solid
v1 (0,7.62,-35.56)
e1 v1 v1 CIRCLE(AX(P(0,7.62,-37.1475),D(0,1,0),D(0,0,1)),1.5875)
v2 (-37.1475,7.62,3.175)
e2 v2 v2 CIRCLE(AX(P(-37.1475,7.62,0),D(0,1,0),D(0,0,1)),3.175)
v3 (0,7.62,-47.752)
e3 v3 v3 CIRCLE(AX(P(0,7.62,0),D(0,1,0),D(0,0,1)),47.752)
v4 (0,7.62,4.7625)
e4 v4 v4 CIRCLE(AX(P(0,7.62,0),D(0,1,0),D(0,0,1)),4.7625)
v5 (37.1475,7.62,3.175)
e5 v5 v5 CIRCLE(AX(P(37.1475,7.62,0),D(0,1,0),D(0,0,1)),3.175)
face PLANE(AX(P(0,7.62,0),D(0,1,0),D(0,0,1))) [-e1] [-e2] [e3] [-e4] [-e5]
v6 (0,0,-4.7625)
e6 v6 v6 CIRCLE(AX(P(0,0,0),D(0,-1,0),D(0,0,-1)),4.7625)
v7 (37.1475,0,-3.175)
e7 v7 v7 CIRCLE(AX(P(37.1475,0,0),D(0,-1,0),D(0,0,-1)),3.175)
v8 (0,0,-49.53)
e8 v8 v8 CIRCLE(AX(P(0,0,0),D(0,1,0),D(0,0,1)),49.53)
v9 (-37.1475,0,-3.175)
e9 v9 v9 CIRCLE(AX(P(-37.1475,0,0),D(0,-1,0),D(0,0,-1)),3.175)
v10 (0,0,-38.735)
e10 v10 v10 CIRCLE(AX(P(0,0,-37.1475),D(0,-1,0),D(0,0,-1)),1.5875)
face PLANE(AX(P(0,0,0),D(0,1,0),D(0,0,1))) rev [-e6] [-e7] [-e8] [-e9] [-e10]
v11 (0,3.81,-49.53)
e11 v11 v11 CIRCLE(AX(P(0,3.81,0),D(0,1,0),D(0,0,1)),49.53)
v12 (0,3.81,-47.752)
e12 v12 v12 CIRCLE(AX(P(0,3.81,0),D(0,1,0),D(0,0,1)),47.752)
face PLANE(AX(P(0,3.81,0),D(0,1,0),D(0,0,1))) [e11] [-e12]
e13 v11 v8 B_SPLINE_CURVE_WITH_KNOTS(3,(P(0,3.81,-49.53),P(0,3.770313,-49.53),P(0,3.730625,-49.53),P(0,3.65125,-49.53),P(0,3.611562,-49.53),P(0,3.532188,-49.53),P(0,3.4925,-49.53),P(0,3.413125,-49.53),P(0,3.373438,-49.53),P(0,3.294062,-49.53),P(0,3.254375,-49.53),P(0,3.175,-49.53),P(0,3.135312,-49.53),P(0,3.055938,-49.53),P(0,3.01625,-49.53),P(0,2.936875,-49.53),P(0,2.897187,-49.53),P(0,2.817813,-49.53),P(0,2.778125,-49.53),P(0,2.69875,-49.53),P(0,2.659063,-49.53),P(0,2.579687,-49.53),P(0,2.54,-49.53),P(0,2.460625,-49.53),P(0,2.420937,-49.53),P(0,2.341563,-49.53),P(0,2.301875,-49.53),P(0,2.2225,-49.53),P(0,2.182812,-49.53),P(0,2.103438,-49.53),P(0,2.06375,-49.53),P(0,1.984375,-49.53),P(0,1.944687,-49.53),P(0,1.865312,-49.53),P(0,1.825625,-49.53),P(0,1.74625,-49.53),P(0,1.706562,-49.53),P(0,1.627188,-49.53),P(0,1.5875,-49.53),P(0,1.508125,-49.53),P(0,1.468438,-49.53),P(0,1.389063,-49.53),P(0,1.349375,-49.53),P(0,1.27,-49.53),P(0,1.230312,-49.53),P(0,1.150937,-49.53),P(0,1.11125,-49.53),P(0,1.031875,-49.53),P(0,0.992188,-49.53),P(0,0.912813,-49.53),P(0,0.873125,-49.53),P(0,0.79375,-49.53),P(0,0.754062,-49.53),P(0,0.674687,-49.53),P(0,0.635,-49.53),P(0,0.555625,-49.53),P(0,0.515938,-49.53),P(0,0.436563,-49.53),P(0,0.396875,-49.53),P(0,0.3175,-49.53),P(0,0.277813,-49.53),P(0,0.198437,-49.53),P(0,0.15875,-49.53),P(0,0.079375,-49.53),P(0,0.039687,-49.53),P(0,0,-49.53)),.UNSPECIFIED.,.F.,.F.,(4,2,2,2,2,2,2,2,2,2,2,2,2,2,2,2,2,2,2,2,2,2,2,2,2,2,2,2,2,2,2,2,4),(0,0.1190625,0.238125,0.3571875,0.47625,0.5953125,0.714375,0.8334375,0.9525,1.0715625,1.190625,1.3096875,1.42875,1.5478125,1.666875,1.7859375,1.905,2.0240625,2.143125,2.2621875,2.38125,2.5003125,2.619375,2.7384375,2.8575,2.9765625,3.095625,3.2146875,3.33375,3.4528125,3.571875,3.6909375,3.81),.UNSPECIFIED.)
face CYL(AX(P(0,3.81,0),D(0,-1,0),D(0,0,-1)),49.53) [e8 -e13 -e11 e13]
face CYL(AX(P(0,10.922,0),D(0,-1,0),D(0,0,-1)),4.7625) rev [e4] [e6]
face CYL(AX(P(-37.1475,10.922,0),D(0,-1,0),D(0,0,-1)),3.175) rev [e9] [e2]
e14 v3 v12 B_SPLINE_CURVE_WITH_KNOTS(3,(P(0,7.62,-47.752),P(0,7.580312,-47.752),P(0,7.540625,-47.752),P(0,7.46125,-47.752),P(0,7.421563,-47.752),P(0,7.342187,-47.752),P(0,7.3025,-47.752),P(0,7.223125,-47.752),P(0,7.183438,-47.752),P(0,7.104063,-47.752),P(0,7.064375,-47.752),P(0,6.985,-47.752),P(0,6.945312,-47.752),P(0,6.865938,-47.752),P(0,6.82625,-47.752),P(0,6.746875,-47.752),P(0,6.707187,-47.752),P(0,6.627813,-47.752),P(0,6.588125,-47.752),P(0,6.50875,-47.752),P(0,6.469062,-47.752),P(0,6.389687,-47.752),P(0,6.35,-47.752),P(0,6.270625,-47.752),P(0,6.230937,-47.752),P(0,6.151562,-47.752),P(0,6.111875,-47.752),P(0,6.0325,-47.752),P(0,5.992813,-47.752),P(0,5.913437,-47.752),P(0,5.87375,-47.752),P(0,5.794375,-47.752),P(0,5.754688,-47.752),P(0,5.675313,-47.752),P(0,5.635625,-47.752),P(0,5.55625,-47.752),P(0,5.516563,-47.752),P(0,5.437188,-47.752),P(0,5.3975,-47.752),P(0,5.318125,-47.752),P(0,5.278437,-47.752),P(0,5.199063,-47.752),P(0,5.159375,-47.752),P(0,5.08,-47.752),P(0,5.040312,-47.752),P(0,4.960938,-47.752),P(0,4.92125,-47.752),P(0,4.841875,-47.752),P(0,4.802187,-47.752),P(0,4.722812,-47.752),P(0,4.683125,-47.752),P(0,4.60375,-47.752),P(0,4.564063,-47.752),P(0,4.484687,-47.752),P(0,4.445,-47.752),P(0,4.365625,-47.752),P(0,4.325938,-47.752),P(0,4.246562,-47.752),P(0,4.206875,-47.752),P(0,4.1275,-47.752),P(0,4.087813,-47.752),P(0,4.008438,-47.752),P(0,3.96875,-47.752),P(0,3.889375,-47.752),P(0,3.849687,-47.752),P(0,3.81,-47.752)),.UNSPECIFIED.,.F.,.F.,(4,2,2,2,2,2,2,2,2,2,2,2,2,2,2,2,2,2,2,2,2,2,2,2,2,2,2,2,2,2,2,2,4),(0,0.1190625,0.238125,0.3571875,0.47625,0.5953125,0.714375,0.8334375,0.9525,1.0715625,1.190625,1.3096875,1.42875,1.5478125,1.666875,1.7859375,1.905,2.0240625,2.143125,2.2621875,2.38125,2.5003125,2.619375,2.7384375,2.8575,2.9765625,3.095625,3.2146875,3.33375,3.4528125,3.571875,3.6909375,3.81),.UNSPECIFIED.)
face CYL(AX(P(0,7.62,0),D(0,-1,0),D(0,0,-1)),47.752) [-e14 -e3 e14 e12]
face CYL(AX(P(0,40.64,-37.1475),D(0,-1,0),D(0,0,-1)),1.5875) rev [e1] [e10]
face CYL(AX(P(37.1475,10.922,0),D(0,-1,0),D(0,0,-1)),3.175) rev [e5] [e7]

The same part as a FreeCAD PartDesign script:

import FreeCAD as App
import Part
import Sketcher
from FreeCAD import Vector
Q = App.Units.Quantity

doc = App.newDocument("Part")
body = doc.addObject("PartDesign::Body", "Body")

sketch1 = body.newObject("Sketcher::SketchObject", "Sketch")
sketch1.AttachmentSupport = (doc.getObject("XZ_Plane"), [""])
sketch1.MapMode = "FlatFace"
sketch1.addGeometry(Part.Circle(Vector(0, 0, 0), Vector(0, 0, 1), 50), False)
sketch1.addConstraint(Sketcher.Constraint("Coincident", 0, 3, -1, 1))
sketch1.addConstraint(Sketcher.Constraint("Diameter", 0, Q("3.9 in")))
pad1 = body.newObject("PartDesign::Pad", "Pad")
pad1.Profile = sketch1
pad1.Length = Q("0.15 in")
pad1.Reversed = True

sketch2 = body.newObject("Sketcher::SketchObject", "Sketch001")
sketch2.AttachmentSupport = (doc.getObject("XZ_Plane"), [""])
sketch2.MapMode = "FlatFace"
sketch2.AttachmentOffset = App.Placement(Vector(0, 0, -0.15 * 25.4), App.Rotation())
sketch2.addGeometry(Part.Circle(Vector(0, 0, 0), Vector(0, 0, 1), 48), False)
sketch2.addConstraint(Sketcher.Constraint("Coincident", 0, 3, -1, 1))
sketch2.addConstraint(Sketcher.Constraint("Diameter", 0, Q("3.76 in")))
pad2 = body.newObject("PartDesign::Pad", "Pad001")
pad2.Profile = sketch2
pad2.Length = Q("0.15 in")
pad2.Reversed = True

sketch3 = body.newObject("Sketcher::SketchObject", "Sketch002")
sketch3.AttachmentSupport = (doc.getObject("XZ_Plane"), [""])
sketch3.MapMode = "FlatFace"
sketch3.addGeometry(Part.Circle(Vector(37.1, 0, 0), Vector(0, 0, 1), 3.2), False)
sketch3.addGeometry(Part.Circle(Vector(-37.1, 0, 0), Vector(0, 0, 1), 3.2), False)
sketch3.addGeometry(Part.Circle(Vector(0, 0, 0), Vector(0, 0, 1), 4.8), False)
sketch3.addConstraint(Sketcher.Constraint("Coincident", 2, 3, -1, 1))
sketch3.addConstraint(Sketcher.Constraint("Equal", 0, 1))
sketch3.addConstraint(Sketcher.Constraint("Symmetric", 0, 3, 1, 3, -1, 1))
sketch3.addConstraint(Sketcher.Constraint("PointOnObject", 0, 3, -1))
sketch3.addConstraint(Sketcher.Constraint("Diameter", 0, Q("0.25 in")))
sketch3.addConstraint(Sketcher.Constraint("Diameter", 2, Q("0.375 in")))
sketch3.addConstraint(Sketcher.Constraint("DistanceX", 1, 3, 0, 3, Q("2.925 in")))
pocket1 = body.newObject("PartDesign::Pocket", "Pocket")
pocket1.Profile = sketch3
pocket1.Length = Q("0.43 in")

sketch4 = body.newObject("Sketcher::SketchObject", "Sketch003")
sketch4.AttachmentSupport = (doc.getObject("XZ_Plane"), [""])
sketch4.MapMode = "FlatFace"
sketch4.addGeometry(Part.Circle(Vector(0, -37.1, 0), Vector(0, 0, 1), 1.6), False)
sketch4.addConstraint(Sketcher.Constraint("PointOnObject", 0, 3, -2))
sketch4.addConstraint(Sketcher.Constraint("Diameter", 0, Q("0.125 in")))
sketch4.addConstraint(Sketcher.Constraint("DistanceY", 0, 3, -1, 1, Q("1.4625 in")))
pocket2 = body.newObject("PartDesign::Pocket", "Pocket001")
pocket2.Profile = sketch4
pocket2.Length = Q("1.6 in")

doc.recompute()
